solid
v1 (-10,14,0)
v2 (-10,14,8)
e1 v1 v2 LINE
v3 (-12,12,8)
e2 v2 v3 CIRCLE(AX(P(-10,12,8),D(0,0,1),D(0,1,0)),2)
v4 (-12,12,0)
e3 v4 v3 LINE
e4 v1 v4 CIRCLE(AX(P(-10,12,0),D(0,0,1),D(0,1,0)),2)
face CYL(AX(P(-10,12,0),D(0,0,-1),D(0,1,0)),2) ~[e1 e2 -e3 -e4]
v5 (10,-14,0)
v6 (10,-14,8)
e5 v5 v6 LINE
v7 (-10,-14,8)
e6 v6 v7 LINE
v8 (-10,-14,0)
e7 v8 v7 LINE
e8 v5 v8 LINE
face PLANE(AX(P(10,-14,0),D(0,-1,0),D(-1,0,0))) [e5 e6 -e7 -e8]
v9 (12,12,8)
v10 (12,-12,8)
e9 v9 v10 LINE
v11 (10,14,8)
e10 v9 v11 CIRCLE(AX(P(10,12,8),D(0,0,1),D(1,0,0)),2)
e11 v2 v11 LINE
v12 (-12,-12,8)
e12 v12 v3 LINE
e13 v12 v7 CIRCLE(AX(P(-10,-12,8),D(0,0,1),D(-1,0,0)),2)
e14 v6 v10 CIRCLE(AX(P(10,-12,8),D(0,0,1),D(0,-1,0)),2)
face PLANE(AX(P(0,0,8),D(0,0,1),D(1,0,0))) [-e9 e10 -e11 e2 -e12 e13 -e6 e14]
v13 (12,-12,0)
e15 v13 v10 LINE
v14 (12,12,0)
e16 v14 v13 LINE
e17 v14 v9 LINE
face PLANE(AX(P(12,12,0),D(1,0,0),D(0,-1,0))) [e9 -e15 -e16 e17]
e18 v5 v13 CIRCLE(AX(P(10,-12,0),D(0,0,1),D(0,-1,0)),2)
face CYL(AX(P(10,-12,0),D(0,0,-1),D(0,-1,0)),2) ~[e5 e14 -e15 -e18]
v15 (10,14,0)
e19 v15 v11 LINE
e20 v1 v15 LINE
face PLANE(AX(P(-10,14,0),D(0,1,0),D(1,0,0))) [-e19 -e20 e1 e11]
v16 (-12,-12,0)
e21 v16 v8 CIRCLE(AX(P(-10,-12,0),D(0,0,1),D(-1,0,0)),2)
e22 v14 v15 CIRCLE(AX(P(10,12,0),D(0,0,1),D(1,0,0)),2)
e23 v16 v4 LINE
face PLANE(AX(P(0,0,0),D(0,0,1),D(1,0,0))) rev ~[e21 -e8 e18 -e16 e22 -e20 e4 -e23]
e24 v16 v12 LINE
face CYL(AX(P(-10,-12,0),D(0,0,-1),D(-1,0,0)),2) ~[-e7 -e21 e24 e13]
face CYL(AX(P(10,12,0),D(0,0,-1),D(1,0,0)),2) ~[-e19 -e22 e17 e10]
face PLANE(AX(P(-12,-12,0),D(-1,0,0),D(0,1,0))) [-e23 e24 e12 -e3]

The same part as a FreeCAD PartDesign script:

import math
import FreeCAD as App
import Part
import Sketcher

V = App.Vector
Q = App.Units.Quantity

doc = App.newDocument("Part")
body = doc.addObject("PartDesign::Body", "Body")

# Sketch on XY plane
sketch1 = body.newObject("Sketcher::SketchObject", "Sketch")
sketch1.AttachmentSupport = (doc.getObject("XY_Plane"), [""])
sketch1.MapMode = "FlatFace"
sketch1.addGeometry([
    Part.LineSegment(V(-10, -14, 0), V(10, -14, 0)),  # 0
    Part.ArcOfCircle(Part.Circle(V(10, -12, 0), V(0, 0, 1), 2), math.radians(-90), math.radians(0)),  # 1
    Part.LineSegment(V(12, -12, 0), V(12, 12, 0)),  # 2
    Part.ArcOfCircle(Part.Circle(V(10, 12, 0), V(0, 0, 1), 2), math.radians(0), math.radians(90)),  # 3
    Part.LineSegment(V(10, 14, 0), V(-10, 14, 0)),  # 4
    Part.ArcOfCircle(Part.Circle(V(-10, 12, 0), V(0, 0, 1), 2), math.radians(90), math.radians(180)),  # 5
    Part.LineSegment(V(-12, 12, 0), V(-12, -12, 0)),  # 6
    Part.ArcOfCircle(Part.Circle(V(-10, -12, 0), V(0, 0, 1), 2), math.radians(180), math.radians(270)),  # 7
], False)
sketch1.addConstraint([
    Sketcher.Constraint("Tangent", 0, 2, 1, 1),
    Sketcher.Constraint("Tangent", 1, 2, 2, 1),
    Sketcher.Constraint("Tangent", 2, 2, 3, 1),
    Sketcher.Constraint("Tangent", 3, 2, 4, 1),
    Sketcher.Constraint("Tangent", 4, 2, 5, 1),
    Sketcher.Constraint("Tangent", 5, 2, 6, 1),
    Sketcher.Constraint("Tangent", 6, 2, 7, 1),
    Sketcher.Constraint("Tangent", 7, 2, 0, 1),
    Sketcher.Constraint("Horizontal", 0),
    Sketcher.Constraint("Vertical", 2),
    Sketcher.Constraint("Horizontal", 4),
    Sketcher.Constraint("Vertical", 6),
    Sketcher.Constraint("Equal", 1, 3),
    Sketcher.Constraint("Equal", 3, 5),
    Sketcher.Constraint("Equal", 5, 7),
    Sketcher.Constraint("Symmetric", 1, 3, 5, 3, -1, 1),
    Sketcher.Constraint("Radius", 1, Q("2 mm")),
    Sketcher.Constraint("DistanceY", 2, 1, 2, 2, Q("24 mm")),
    Sketcher.Constraint("DistanceX", 5, 2, 2, 2, Q("24 mm")),
])
pad1 = body.newObject("PartDesign::Pad", "Pad")
pad1.Profile = sketch1
pad1.Length = 8

doc.recompute()
